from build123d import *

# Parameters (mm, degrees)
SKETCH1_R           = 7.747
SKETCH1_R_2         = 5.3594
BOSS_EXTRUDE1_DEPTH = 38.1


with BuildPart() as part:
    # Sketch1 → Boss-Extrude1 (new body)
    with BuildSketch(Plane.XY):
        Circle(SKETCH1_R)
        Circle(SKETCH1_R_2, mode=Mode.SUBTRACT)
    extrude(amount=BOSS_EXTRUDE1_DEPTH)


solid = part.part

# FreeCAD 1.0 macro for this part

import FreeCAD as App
import Part
import Sketcher
from FreeCAD import Vector
Q = App.Units.Quantity

doc = App.newDocument("Part")
body = doc.addObject("PartDesign::Body", "Body")

# Sketch on XY plane
sketch1 = body.newObject("Sketcher::SketchObject", "Sketch")
sketch1.AttachmentSupport = (doc.getObject("XY_Plane"), [""])
sketch1.MapMode = "FlatFace"
sketch1.addGeometry(Part.Circle(Vector(0, 0, 0), Vector(0, 0, 1), 8), False)
sketch1.addGeometry(Part.Circle(Vector(0, 0, 0), Vector(0, 0, 1), 5), False)
sketch1.addConstraint(Sketcher.Constraint("Coincident", 0, 3, -1, 1))
sketch1.addConstraint(Sketcher.Constraint("Coincident", 1, 3, -1, 1))
sketch1.addConstraint(Sketcher.Constraint("Diameter", 0, Q("0.61 in")))
sketch1.addConstraint(Sketcher.Constraint("Diameter", 1, Q("0.422 in")))
pad1 = body.newObject("PartDesign::Pad", "Pad")
pad1.Profile = sketch1
pad1.Length = Q("1.5 in")

doc.recompute()
